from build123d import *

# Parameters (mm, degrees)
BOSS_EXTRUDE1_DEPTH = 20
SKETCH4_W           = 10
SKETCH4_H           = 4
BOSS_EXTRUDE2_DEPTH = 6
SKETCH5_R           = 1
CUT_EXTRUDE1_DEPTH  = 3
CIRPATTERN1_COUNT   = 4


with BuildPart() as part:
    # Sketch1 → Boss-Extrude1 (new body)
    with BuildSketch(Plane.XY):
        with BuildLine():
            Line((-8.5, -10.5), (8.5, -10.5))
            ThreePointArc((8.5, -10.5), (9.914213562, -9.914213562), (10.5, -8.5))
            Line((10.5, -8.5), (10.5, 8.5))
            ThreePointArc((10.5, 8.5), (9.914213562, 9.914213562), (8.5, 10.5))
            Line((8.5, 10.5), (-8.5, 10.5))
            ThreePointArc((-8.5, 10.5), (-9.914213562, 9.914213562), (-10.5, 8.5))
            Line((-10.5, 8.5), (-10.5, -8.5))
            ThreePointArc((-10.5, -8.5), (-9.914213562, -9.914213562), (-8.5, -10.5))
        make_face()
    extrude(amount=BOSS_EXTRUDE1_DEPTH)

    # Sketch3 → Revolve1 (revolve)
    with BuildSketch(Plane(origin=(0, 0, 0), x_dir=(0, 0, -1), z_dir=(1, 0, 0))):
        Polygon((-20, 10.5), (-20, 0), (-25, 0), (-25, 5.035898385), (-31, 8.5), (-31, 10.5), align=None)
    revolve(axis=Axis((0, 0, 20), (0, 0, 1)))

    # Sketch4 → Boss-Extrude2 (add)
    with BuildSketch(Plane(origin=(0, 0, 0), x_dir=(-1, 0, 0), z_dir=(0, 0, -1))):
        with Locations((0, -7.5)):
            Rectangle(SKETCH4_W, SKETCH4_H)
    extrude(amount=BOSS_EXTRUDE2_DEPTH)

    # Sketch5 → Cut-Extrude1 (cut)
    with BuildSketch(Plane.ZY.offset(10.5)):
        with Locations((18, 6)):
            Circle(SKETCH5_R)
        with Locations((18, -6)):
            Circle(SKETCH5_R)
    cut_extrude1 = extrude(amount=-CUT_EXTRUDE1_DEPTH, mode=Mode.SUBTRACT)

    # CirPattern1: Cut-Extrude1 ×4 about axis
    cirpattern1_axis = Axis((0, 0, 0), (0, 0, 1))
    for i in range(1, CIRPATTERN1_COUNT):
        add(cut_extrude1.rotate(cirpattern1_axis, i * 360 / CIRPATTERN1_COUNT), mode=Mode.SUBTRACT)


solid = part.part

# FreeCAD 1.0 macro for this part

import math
import FreeCAD as App
import Part
import Sketcher

V = App.Vector
Q = App.Units.Quantity

doc = App.newDocument("Part")
params = doc.addObject("Spreadsheet::Sheet", "Params")
for row, (alias, value) in enumerate([
    ("sketch1_radius", "2 mm"),
    ("sketch1_width", "17 mm"),
    ("pad1_length", "20 mm"),
    ("sketch2_width", "2 mm"),
    ("sketch2_height", "11 mm"),
    ("sketch2_height2", "5 mm"),
    ("sketch2_width2", "10.5 mm"),
    ("revolution_angle", "360 deg"),
    ("sketch3_width", "10 mm"),
    ("sketch3_height", "4 mm"),
    ("pad2_length", "6 mm"),
    ("sketch4_diameter", "2 mm"),
    ("pocket1_length", "3 mm"),
], start=1):
    params.set(f"A{row}", alias)
    params.set(f"B{row}", "=" + value)
    params.setAlias(f"B{row}", alias)

body = doc.addObject("PartDesign::Body", "Body")

# Sketch on XY plane
sketch1 = body.newObject("Sketcher::SketchObject", "Sketch")
sketch1.AttachmentSupport = (doc.getObject("XY_Plane"), [""])
sketch1.MapMode = "FlatFace"
sketch1.addGeometry([
    Part.LineSegment(V(-8.5, -10.5, 0), V(8.5, -10.5, 0)),  # 0
    Part.ArcOfCircle(Part.Circle(V(8.5, -8.5, 0), V(0, 0, 1), 2), math.radians(-90), math.radians(0)),  # 1
    Part.LineSegment(V(10.5, -8.5, 0), V(10.5, 8.5, 0)),  # 2
    Part.ArcOfCircle(Part.Circle(V(8.5, 8.5, 0), V(0, 0, 1), 2), math.radians(0), math.radians(90)),  # 3
    Part.LineSegment(V(8.5, 10.5, 0), V(-8.5, 10.5, 0)),  # 4
    Part.ArcOfCircle(Part.Circle(V(-8.5, 8.5, 0), V(0, 0, 1), 2), math.radians(90), math.radians(180)),  # 5
    Part.LineSegment(V(-10.5, 8.5, 0), V(-10.5, -8.5, 0)),  # 6
    Part.ArcOfCircle(Part.Circle(V(-8.5, -8.5, 0), V(0, 0, 1), 2), math.radians(-180), math.radians(-90)),  # 7
], False)
sketch1.addConstraint([
    Sketcher.Constraint("Tangent", 0, 2, 1, 1),
    Sketcher.Constraint("Tangent", 1, 2, 2, 1),
    Sketcher.Constraint("Tangent", 2, 2, 3, 1),
    Sketcher.Constraint("Tangent", 3, 2, 4, 1),
    Sketcher.Constraint("Tangent", 4, 2, 5, 1),
    Sketcher.Constraint("Tangent", 5, 2, 6, 1),
    Sketcher.Constraint("Tangent", 6, 2, 7, 1),
    Sketcher.Constraint("Tangent", 7, 2, 0, 1),
    Sketcher.Constraint("Horizontal", 0),
    Sketcher.Constraint("Vertical", 2),
    Sketcher.Constraint("Horizontal", 4),
    Sketcher.Constraint("Vertical", 6),
    Sketcher.Constraint("Equal", 1, 3),
    Sketcher.Constraint("Equal", 3, 5),
    Sketcher.Constraint("Equal", 5, 7),
    Sketcher.Constraint("Symmetric", 1, 3, 5, 3, -1, 1),
    Sketcher.Constraint("Equal", 4, 2),
    Sketcher.Constraint("Radius", 1, 2.0),
    Sketcher.Constraint("DistanceX", 0, 1, 0, 2, 17.0),
])
sketch1.setExpression("Constraints[17]", "Params.sketch1_radius")
sketch1.setExpression("Constraints[18]", "Params.sketch1_width")
pad1 = body.newObject("PartDesign::Pad", "Pad")
pad1.Profile = sketch1
pad1.setExpression("Length", "Params.pad1_length")

# Sketch on YZ plane
sketch2 = body.newObject("Sketcher::SketchObject", "Sketch001")
sketch2.AttachmentSupport = (doc.getObject("YZ_Plane"), [""])
sketch2.MapMode = "FlatFace"
sketch2.addGeometry([
    Part.LineSegment(V(0, 20, 0), V(10.5, 20, 0)),  # 0
    Part.LineSegment(V(10.5, 20, 0), V(10.5, 31, 0)),  # 1
    Part.LineSegment(V(10.5, 31, 0), V(8.5, 31, 0)),  # 2
    Part.LineSegment(V(8.5, 31, 0), V(5, 25, 0)),  # 3
    Part.LineSegment(V(5, 25, 0), V(0, 25, 0)),  # 4
    Part.LineSegment(V(0, 25, 0), V(0, 20, 0)),  # 5
], False)
sketch2.addConstraint([
    Sketcher.Constraint("Coincident", 0, 2, 1, 1),
    Sketcher.Constraint("Coincident", 1, 2, 2, 1),
    Sketcher.Constraint("Coincident", 2, 2, 3, 1),
    Sketcher.Constraint("Coincident", 3, 2, 4, 1),
    Sketcher.Constraint("Coincident", 4, 2, 5, 1),
    Sketcher.Constraint("Coincident", 5, 2, 0, 1),
    Sketcher.Constraint("Horizontal", 0),
    Sketcher.Constraint("Vertical", 1),
    Sketcher.Constraint("Horizontal", 2),
    Sketcher.Constraint("Horizontal", 4),
    Sketcher.Constraint("Vertical", 5),
    Sketcher.Constraint("PointOnObject", 4, 2, -2),
    Sketcher.Constraint("DistanceX", 2, 2, 2, 1, 2.0),
    Sketcher.Constraint("DistanceY", 1, 1, 1, 2, 11.0),
    Sketcher.Constraint("DistanceY", 5, 2, 5, 1, 5.0),
    Sketcher.Constraint("Angle", 3, Q("-120 deg")),
    Sketcher.Constraint("DistanceX", 0, 1, 0, 2, 10.5),
    Sketcher.Constraint("DistanceY", -1, 1, 0, 2, 20.0),
])
sketch2.setExpression("Constraints[12]", "Params.sketch2_width")
sketch2.setExpression("Constraints[13]", "Params.sketch2_height")
sketch2.setExpression("Constraints[14]", "Params.sketch2_height2")
sketch2.setExpression("Constraints[16]", "Params.sketch2_width2")
revolution = body.newObject("PartDesign::Revolution", "Revolution")
revolution.Profile = sketch2
revolution.ReferenceAxis = (sketch2, ["V_Axis"])
revolution.setExpression("Angle", "Params.revolution_angle")

# Sketch on XY plane
sketch3 = body.newObject("Sketcher::SketchObject", "Sketch002")
sketch3.AttachmentSupport = (doc.getObject("XY_Plane"), [""])
sketch3.MapMode = "FlatFace"
sketch3.addGeometry([
    Part.LineSegment(V(5, -5.5, 0), V(5, -9.5, 0)),
    Part.LineSegment(V(5, -9.5, 0), V(-5, -9.5, 0)),
    Part.LineSegment(V(-5, -9.5, 0), V(-5, -5.5, 0)),
    Part.LineSegment(V(-5, -5.5, 0), V(5, -5.5, 0)),
], False)
sketch3.addConstraint([
    Sketcher.Constraint("Coincident", 0, 2, 1, 1),
    Sketcher.Constraint("Coincident", 1, 2, 2, 1),
    Sketcher.Constraint("Coincident", 2, 2, 3, 1),
    Sketcher.Constraint("Coincident", 3, 2, 0, 1),
    Sketcher.Constraint("Vertical", 0),
    Sketcher.Constraint("Horizontal", 1),
    Sketcher.Constraint("Vertical", 2),
    Sketcher.Constraint("Horizontal", 3),
    Sketcher.Constraint("DistanceX", 1, 2, 1, 1, 10.0),
    Sketcher.Constraint("DistanceY", 0, 2, 0, 1, 4.0),
    Sketcher.Constraint("DistanceX", -1, 1, 0, 2, 5.0),
    Sketcher.Constraint("DistanceY", 0, 2, -1, 1, 9.5),
])
sketch3.setExpression("Constraints[8]", "Params.sketch3_width")
sketch3.setExpression("Constraints[9]", "Params.sketch3_height")
pad2 = body.newObject("PartDesign::Pad", "Pad001")
pad2.Profile = sketch3
pad2.setExpression("Length", "Params.pad2_length")
pad2.Reversed = True

# Sketch on YZ plane
sketch4 = body.newObject("Sketcher::SketchObject", "Sketch003")
sketch4.AttachmentSupport = (doc.getObject("YZ_Plane"), [""])
sketch4.MapMode = "FlatFace"
sketch4.AttachmentOffset = App.Placement(V(0, 0, -10.5), App.Rotation())
sketch4.addGeometry([
    Part.Circle(V(6, 18, 0), V(0, 0, 1), 1),
    Part.Circle(V(-6, 18, 0), V(0, 0, 1), 1),
], False)
sketch4.addConstraint([
    Sketcher.Constraint("Equal", 0, 1),
    Sketcher.Constraint("Symmetric", 0, 3, 1, 3, -2),
    Sketcher.Constraint("Diameter", 0, 2.0),
    Sketcher.Constraint("DistanceX", -1, 1, 0, 3, 6.0),
    Sketcher.Constraint("DistanceY", -1, 1, 0, 3, 18.0),
])
sketch4.setExpression("Constraints[2]", "Params.sketch4_diameter")
pocket1 = body.newObject("PartDesign::Pocket", "Pocket")
pocket1.Profile = sketch4
pocket1.setExpression("Length", "Params.pocket1_length")
pocket1.Reversed = True
doc.recompute()

polarpattern = body.newObject("PartDesign::PolarPattern", "PolarPattern")
polarpattern.Originals = [pocket1]
polarpattern.Axis = (doc.getObject("Z_Axis"), [""])
polarpattern.Angle = 360
polarpattern.Occurrences = 4
body.Tip = polarpattern

doc.recompute()
